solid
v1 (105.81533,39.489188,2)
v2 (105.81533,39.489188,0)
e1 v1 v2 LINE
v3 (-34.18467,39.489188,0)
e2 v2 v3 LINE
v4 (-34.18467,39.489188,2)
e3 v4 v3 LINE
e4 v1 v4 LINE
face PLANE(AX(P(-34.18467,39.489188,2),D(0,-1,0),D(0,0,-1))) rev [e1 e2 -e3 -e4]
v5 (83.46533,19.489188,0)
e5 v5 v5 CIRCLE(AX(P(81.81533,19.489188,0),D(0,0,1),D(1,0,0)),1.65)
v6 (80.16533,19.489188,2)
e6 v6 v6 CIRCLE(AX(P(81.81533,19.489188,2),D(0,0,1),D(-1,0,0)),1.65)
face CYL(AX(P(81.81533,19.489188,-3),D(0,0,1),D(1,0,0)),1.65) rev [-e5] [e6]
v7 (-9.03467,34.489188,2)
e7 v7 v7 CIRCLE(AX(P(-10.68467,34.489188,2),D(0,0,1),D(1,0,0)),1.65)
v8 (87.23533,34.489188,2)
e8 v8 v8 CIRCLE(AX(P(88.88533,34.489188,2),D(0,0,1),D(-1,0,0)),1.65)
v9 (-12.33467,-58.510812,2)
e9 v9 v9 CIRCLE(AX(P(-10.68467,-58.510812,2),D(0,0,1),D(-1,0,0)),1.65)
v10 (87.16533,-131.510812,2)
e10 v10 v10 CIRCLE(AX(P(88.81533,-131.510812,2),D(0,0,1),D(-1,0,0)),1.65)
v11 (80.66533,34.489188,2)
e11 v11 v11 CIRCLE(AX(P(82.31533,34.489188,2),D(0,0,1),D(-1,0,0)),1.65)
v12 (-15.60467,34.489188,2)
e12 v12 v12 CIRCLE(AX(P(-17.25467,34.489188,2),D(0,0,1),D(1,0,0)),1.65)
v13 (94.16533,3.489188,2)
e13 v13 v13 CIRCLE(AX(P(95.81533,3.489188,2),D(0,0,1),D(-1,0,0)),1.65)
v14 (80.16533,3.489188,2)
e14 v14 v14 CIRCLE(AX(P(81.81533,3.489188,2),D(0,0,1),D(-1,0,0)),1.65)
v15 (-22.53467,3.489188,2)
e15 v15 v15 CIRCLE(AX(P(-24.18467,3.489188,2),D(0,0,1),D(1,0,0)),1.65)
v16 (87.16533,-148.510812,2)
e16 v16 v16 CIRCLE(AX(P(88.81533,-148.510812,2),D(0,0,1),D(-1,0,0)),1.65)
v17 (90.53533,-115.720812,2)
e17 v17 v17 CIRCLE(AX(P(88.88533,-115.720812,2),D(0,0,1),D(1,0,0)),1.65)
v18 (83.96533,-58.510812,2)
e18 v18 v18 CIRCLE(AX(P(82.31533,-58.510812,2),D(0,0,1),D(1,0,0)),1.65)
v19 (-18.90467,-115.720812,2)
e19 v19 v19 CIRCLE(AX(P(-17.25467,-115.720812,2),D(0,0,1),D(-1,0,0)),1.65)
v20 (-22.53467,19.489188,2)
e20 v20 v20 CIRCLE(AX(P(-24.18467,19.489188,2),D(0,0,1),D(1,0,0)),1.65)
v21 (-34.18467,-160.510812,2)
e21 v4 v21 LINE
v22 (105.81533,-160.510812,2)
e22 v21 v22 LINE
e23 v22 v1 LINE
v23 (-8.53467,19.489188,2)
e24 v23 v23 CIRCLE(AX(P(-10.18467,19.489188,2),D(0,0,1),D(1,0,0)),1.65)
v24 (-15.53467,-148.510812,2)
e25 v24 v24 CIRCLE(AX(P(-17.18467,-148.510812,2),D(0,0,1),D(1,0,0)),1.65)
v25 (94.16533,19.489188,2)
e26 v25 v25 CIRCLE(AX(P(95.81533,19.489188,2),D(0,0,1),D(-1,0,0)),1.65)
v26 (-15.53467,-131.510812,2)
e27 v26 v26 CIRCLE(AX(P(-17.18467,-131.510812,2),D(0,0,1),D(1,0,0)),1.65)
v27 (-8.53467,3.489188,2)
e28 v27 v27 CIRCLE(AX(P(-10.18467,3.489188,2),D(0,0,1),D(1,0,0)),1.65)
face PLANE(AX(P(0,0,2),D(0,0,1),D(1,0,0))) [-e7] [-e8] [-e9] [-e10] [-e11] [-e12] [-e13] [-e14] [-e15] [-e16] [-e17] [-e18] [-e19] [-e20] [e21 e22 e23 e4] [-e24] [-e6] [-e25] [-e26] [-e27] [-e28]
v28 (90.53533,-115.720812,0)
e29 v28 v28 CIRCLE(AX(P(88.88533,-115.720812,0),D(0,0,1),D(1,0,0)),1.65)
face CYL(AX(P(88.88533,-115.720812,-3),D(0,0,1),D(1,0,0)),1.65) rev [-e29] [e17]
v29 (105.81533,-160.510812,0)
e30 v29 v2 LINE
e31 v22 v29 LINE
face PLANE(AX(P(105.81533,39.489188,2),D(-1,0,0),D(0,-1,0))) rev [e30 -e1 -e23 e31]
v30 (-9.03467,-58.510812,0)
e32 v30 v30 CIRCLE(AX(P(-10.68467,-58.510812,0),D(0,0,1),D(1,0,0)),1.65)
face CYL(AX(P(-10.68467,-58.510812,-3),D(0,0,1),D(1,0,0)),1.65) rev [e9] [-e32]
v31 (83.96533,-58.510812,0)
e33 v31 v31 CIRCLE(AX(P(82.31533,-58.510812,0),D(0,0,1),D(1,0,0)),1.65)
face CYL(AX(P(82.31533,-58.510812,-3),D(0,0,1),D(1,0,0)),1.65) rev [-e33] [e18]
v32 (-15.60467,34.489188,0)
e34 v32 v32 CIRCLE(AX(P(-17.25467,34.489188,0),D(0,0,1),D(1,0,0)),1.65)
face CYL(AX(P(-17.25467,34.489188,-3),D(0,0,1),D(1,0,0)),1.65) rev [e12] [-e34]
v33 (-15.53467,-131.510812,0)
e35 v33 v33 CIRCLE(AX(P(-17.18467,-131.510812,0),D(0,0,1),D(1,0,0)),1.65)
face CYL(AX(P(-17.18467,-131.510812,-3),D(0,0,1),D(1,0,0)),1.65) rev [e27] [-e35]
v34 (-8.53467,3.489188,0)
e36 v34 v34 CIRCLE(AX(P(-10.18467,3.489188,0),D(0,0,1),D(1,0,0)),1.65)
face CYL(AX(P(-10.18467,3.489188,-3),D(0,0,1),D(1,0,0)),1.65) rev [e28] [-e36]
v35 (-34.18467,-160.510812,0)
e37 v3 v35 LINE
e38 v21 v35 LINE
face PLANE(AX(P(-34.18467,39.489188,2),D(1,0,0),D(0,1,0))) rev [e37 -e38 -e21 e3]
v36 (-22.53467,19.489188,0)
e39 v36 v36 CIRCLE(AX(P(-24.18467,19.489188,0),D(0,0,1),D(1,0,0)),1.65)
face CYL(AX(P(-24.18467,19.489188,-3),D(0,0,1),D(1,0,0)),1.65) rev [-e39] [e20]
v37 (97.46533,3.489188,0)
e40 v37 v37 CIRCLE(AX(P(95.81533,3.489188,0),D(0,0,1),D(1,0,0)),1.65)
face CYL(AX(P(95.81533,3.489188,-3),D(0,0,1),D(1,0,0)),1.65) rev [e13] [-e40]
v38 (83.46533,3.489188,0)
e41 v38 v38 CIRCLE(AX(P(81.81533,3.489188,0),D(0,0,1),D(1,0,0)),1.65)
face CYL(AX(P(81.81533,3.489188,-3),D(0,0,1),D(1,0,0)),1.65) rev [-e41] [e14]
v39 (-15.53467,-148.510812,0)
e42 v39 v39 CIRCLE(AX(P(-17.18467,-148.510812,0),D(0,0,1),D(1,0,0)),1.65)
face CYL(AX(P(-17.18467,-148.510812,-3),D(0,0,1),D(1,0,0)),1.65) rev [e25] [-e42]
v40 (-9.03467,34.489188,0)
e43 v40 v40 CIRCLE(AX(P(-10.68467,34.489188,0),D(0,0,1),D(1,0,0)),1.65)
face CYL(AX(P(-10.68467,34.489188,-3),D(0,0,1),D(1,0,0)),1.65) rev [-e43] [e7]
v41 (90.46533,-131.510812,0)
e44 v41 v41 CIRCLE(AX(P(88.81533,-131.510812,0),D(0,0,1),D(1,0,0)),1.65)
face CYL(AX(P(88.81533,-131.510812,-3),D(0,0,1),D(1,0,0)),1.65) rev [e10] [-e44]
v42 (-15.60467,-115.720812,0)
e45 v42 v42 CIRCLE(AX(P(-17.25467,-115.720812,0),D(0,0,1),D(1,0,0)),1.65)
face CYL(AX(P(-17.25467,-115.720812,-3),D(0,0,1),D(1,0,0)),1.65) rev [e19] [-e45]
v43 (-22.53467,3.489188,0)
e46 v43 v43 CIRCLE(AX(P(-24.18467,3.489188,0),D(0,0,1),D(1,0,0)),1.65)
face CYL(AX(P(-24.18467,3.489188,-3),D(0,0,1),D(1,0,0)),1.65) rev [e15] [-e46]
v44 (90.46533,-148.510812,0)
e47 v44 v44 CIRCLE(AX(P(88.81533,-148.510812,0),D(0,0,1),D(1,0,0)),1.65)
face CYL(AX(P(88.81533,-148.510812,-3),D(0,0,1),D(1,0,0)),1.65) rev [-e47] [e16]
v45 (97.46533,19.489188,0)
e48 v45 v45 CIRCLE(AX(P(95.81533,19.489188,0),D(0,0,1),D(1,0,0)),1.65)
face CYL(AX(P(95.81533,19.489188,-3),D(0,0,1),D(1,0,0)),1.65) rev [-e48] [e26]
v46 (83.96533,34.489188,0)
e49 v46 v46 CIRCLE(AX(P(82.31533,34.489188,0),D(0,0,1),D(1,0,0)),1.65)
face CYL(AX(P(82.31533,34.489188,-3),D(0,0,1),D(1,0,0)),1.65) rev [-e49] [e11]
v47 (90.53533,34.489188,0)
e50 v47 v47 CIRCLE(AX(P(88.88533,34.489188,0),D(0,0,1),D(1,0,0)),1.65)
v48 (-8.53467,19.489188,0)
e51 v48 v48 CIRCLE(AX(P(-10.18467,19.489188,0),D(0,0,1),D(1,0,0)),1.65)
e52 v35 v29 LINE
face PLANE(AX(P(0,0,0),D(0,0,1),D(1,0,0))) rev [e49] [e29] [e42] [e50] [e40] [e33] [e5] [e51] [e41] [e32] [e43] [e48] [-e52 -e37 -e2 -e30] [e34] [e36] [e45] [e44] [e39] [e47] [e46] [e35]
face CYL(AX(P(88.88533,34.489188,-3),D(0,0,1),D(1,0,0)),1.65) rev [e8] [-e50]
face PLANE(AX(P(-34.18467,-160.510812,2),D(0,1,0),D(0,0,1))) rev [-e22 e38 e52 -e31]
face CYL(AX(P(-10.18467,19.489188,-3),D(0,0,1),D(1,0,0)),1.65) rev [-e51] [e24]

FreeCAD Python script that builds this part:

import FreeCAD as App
import Part
import Sketcher

V = App.Vector
Q = App.Units.Quantity


def add_polygon(sketch, points):
    """Adds a closed chain of lines whose ends are joined by coincident constraints."""
    first, n = sketch.GeometryCount, len(points)
    for a, b in zip(points, points[1:] + points[:1]):
        sketch.addGeometry(Part.LineSegment(App.Vector(*a, 0), App.Vector(*b, 0)), False)
    for i in range(n):
        sketch.addConstraint(Sketcher.Constraint("Coincident", first + i, 2, first + (i + 1) % n, 1))

doc = App.newDocument("Part")
body = doc.addObject("PartDesign::Body", "Body")

sketch1 = doc.addObject("Sketcher::SketchObject", "Sketch")
body.addObject(sketch1)
sketch1.AttachmentSupport = (doc.XY_Plane, [""])
sketch1.MapMode = "FlatFace"
add_polygon(sketch1, [(-34, 39), (-34, -161), (106, -161), (106, 39)])
sketch1.addConstraint([
    Sketcher.Constraint("Vertical", 0),
    Sketcher.Constraint("Horizontal", 1),
    Sketcher.Constraint("Vertical", 2),
    Sketcher.Constraint("Horizontal", 3),
    Sketcher.Constraint("DistanceX", 1, 1, 1, 2, Q("140 mm")),
    Sketcher.Constraint("DistanceY", 0, 2, 0, 1, Q("200 mm")),
    Sketcher.Constraint("DistanceX", 0, 2, -1, 1, Q("34.18467 mm")),
    Sketcher.Constraint("DistanceY", 0, 2, -1, 1, Q("160.510812 mm")),
])
pad1 = doc.addObject("PartDesign::Pad", "Pad")
body.addObject(pad1)
pad1.Profile = sketch1
pad1.Length = 2

sketch2 = doc.addObject("Sketcher::SketchObject", "Sketch001")
body.addObject(sketch2)
sketch2.AttachmentSupport = (doc.XY_Plane, [""])
sketch2.MapMode = "FlatFace"
sketch2.AttachmentOffset = App.Placement(V(0, 0, 2), App.Rotation())
sketch2.addGeometry([
    Part.Circle(V(-10.7, 34.5, 0), V(0, 0, 1), 1.6),
    Part.Circle(V(82.3, 34.5, 0), V(0, 0, 1), 1.6),
    Part.Circle(V(82.3, -58.5, 0), V(0, 0, 1), 1.6),
    Part.Circle(V(-10.7, -58.5, 0), V(0, 0, 1), 1.6),
    Part.Circle(V(-24.2, 19.5, 0), V(0, 0, 1), 1.6),
    Part.Circle(V(-10.2, 19.5, 0), V(0, 0, 1), 1.6),
    Part.Circle(V(-24.2, 3.5, 0), V(0, 0, 1), 1.6),
    Part.Circle(V(-10.2, 3.5, 0), V(0, 0, 1), 1.6),
    Part.Circle(V(81.8, 3.5, 0), V(0, 0, 1), 1.6),
    Part.Circle(V(95.8, 3.5, 0), V(0, 0, 1), 1.6),
    Part.Circle(V(81.8, 19.5, 0), V(0, 0, 1), 1.6),
    Part.Circle(V(95.8, 19.5, 0), V(0, 0, 1), 1.6),
    Part.Circle(V(-17.2, -131.5, 0), V(0, 0, 1), 1.6),
    Part.Circle(V(-17.2, -148.5, 0), V(0, 0, 1), 1.6),
    Part.Circle(V(88.8, -148.5, 0), V(0, 0, 1), 1.6),
    Part.Circle(V(88.8, -131.5, 0), V(0, 0, 1), 1.6),
    Part.Circle(V(-17.3, 34.5, 0), V(0, 0, 1), 1.6),
    Part.Circle(V(88.9, 34.5, 0), V(0, 0, 1), 1.6),
    Part.Circle(V(88.9, -115.7, 0), V(0, 0, 1), 1.6),
    Part.Circle(V(-17.3, -115.7, 0), V(0, 0, 1), 1.6),
], False)
sketch2.addConstraint([
    Sketcher.Constraint("Equal", 0, 1),
    Sketcher.Constraint("Equal", 1, 2),
    Sketcher.Constraint("Equal", 2, 3),
    Sketcher.Constraint("Equal", 3, 4),
    Sketcher.Constraint("Equal", 4, 5),
    Sketcher.Constraint("Equal", 5, 6),
    Sketcher.Constraint("Equal", 6, 7),
    Sketcher.Constraint("Equal", 7, 8),
    Sketcher.Constraint("Equal", 8, 9),
    Sketcher.Constraint("Equal", 9, 10),
    Sketcher.Constraint("Equal", 10, 11),
    Sketcher.Constraint("Equal", 11, 12),
    Sketcher.Constraint("Equal", 12, 13),
    Sketcher.Constraint("Equal", 13, 14),
    Sketcher.Constraint("Equal", 14, 15),
    Sketcher.Constraint("Equal", 15, 16),
    Sketcher.Constraint("Equal", 16, 17),
    Sketcher.Constraint("Equal", 17, 18),
    Sketcher.Constraint("Equal", 18, 19),
    Sketcher.Constraint("Horizontal", 0, 3, 1, 3),
    Sketcher.Constraint("Horizontal", 2, 3, 3, 3),
    Sketcher.Constraint("Horizontal", 4, 3, 5, 3),
    Sketcher.Constraint("Horizontal", 6, 3, 7, 3),
    Sketcher.Constraint("Horizontal", 7, 3, 8, 3),
    Sketcher.Constraint("Horizontal", 8, 3, 9, 3),
    Sketcher.Constraint("Horizontal", 5, 3, 10, 3),
    Sketcher.Constraint("Horizontal", 10, 3, 11, 3),
    Sketcher.Constraint("Horizontal", 13, 3, 14, 3),
    Sketcher.Constraint("Horizontal", 12, 3, 15, 3),
    Sketcher.Constraint("Horizontal", 1, 3, 16, 3),
    Sketcher.Constraint("Horizontal", 16, 3, 17, 3),
    Sketcher.Constraint("Horizontal", 18, 3, 19, 3),
    Sketcher.Constraint("Vertical", 1, 3, 2, 3),
    Sketcher.Constraint("Vertical", 0, 3, 3, 3),
    Sketcher.Constraint("Vertical", 4, 3, 6, 3),
    Sketcher.Constraint("Vertical", 5, 3, 7, 3),
    Sketcher.Constraint("Vertical", 8, 3, 10, 3),
    Sketcher.Constraint("Vertical", 9, 3, 11, 3),
    Sketcher.Constraint("Vertical", 12, 3, 13, 3),
    Sketcher.Constraint("Vertical", 14, 3, 15, 3),
    Sketcher.Constraint("Vertical", 17, 3, 18, 3),
    Sketcher.Constraint("Vertical", 16, 3, 19, 3),
    Sketcher.Constraint("Diameter", 0, Q("3.3 mm")),
    Sketcher.Constraint("DistanceX", 0, 3, 1, 3, Q("93 mm")),
    Sketcher.Constraint("DistanceY", 2, 3, 1, 3, Q("93 mm")),
    Sketcher.Constraint("DistanceY", 4, 3, 0, 3, Q("15 mm")),
    Sketcher.Constraint("DistanceX", 4, 3, 5, 3, Q("14 mm")),
    Sketcher.Constraint("DistanceY", 6, 3, 4, 3, Q("16 mm")),
    Sketcher.Constraint("DistanceX", 7, 3, 8, 3, Q("92 mm")),
    Sketcher.Constraint("DistanceX", 8, 3, 9, 3, Q("14 mm")),
    Sketcher.Constraint("DistanceY", 12, 3, 3, 3, Q("73 mm")),
    Sketcher.Constraint("DistanceX", 6, 3, 12, 3, Q("7 mm")),
    Sketcher.Constraint("DistanceY", 13, 3, 12, 3, Q("17 mm")),
    Sketcher.Constraint("DistanceX", 13, 3, 14, 3, Q("106 mm")),
    Sketcher.Constraint("DistanceX", 4, 3, 0, 3, Q("13.5 mm")),
    Sketcher.Constraint("DistanceX", 16, 3, 0, 3, Q("6.57 mm")),
    Sketcher.Constraint("DistanceX", 1, 3, 17, 3, Q("6.57 mm")),
    Sketcher.Constraint("DistanceY", 15, 3, 18, 3, Q("15.79 mm")),
    Sketcher.Constraint("DistanceX", 0, 3, -1, 1, Q("10.68467 mm")),
    Sketcher.Constraint("DistanceY", -1, 1, 0, 3, Q("34.489188 mm")),
])
pocket1 = doc.addObject("PartDesign::Pocket", "Pocket")
body.addObject(pocket1)
pocket1.Profile = sketch2
pocket1.Length = 5

doc.recompute()
